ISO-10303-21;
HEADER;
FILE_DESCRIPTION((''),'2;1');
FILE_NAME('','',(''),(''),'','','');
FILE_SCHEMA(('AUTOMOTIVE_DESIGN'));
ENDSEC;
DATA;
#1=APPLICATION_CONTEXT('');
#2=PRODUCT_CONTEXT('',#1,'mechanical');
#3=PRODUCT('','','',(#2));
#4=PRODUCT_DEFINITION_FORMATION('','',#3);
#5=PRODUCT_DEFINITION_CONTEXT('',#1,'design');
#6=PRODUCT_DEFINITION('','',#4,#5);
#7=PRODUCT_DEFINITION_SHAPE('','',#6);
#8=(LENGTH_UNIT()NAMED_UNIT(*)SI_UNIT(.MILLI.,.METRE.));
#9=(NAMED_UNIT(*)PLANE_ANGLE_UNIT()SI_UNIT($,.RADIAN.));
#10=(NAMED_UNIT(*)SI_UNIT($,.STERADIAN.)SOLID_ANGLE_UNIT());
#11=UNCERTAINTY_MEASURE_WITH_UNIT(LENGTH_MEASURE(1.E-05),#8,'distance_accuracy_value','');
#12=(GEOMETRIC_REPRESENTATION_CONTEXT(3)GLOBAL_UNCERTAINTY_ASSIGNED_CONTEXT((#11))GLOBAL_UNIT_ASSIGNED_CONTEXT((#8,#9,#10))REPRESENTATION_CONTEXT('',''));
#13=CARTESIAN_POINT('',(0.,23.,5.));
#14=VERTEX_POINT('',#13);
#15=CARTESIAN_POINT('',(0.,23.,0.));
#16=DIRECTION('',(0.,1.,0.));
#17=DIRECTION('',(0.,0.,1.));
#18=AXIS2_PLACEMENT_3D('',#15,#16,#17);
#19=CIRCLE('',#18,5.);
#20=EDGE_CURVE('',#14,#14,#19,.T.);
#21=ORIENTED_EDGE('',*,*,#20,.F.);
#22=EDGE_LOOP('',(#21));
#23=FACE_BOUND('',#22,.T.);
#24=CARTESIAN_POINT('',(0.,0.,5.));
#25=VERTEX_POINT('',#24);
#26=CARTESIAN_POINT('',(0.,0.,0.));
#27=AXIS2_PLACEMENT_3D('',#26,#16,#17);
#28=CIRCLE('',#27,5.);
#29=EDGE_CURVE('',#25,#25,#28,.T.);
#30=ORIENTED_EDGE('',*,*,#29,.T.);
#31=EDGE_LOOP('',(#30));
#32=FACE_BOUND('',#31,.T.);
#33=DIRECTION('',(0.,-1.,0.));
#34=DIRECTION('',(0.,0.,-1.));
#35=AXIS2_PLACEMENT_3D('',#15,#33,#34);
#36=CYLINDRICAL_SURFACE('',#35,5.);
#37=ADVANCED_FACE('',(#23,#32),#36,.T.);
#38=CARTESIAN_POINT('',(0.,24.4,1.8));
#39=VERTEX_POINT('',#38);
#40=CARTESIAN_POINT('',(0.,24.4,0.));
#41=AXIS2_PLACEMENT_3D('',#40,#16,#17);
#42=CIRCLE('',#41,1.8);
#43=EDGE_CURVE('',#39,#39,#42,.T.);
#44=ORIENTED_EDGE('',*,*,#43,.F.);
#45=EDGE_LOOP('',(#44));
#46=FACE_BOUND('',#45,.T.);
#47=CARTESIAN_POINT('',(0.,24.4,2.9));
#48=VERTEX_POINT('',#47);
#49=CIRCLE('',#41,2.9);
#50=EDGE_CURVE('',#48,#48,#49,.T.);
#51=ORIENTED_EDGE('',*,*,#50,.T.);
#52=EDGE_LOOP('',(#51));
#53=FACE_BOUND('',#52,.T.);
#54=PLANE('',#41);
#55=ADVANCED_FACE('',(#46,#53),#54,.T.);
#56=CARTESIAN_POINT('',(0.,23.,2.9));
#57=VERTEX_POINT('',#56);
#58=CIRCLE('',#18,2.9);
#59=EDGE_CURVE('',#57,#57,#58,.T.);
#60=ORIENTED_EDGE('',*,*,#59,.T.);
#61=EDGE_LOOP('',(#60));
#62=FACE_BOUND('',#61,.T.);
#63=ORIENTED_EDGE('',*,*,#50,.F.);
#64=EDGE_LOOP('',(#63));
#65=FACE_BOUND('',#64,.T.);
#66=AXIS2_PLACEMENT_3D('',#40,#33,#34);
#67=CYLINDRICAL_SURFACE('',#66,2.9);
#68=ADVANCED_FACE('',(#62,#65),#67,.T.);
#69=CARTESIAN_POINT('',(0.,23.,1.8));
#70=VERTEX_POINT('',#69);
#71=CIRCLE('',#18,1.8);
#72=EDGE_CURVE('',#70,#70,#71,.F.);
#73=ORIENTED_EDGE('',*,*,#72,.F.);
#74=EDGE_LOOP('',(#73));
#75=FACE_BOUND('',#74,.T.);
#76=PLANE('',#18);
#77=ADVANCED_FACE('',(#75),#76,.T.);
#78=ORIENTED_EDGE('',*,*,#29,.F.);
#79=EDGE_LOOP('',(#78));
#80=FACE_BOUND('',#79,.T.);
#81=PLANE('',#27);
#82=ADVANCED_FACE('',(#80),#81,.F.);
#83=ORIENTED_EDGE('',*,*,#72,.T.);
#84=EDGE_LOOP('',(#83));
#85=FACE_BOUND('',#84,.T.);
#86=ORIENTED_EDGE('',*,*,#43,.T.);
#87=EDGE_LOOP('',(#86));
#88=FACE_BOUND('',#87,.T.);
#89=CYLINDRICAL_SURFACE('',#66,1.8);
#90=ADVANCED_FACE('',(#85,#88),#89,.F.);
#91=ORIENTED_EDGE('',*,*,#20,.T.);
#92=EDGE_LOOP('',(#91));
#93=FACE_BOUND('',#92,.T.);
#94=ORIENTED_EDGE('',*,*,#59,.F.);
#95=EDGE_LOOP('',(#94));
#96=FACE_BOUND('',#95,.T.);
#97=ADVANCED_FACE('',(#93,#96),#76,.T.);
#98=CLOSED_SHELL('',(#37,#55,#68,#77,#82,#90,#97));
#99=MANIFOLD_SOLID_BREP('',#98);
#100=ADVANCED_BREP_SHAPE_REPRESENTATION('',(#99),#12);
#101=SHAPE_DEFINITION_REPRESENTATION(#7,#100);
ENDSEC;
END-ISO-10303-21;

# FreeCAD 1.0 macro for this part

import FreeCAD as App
import Part
import Sketcher
from FreeCAD import Vector
Q = App.Units.Quantity

doc = App.newDocument("Part")
body = doc.addObject("PartDesign::Body", "Body")

# Sketch on XZ plane
sketch1 = body.newObject("Sketcher::SketchObject", "Sketch")
sketch1.AttachmentSupport = (doc.getObject("XZ_Plane"), [""])
sketch1.MapMode = "FlatFace"
sketch1.addGeometry(Part.Circle(Vector(0, 0, 0), Vector(0, 0, 1), 5), False)
sketch1.addConstraint([
    Sketcher.Constraint("Coincident", 0, 3, -1, 1),
    Sketcher.Constraint("Diameter", 0, Q("10 mm")),
])
pad1 = body.newObject("PartDesign::Pad", "Pad")
pad1.Profile = sketch1
pad1.Length = 23
pad1.Reversed = True

# Sketch on XZ plane
sketch2 = body.newObject("Sketcher::SketchObject", "Sketch001")
sketch2.AttachmentSupport = (doc.getObject("XZ_Plane"), [""])
sketch2.MapMode = "FlatFace"
sketch2.AttachmentOffset = App.Placement(Vector(0, 0, -23), App.Rotation())
sketch2.addGeometry([
    Part.Circle(Vector(0, 0, 0), Vector(0, 0, 1), 2.9),
    Part.Circle(Vector(0, 0, 0), Vector(0, 0, 1), 1.8),
], False)
sketch2.addConstraint([
    Sketcher.Constraint("Coincident", 0, 3, -1, 1),
    Sketcher.Constraint("Coincident", 1, 3, -1, 1),
    Sketcher.Constraint("Diameter", 0, Q("5.8 mm")),
    Sketcher.Constraint("Diameter", 1, Q("3.6 mm")),
])
pad2 = body.newObject("PartDesign::Pad", "Pad001")
pad2.Profile = sketch2
pad2.Length = 1.4
pad2.Reversed = True

doc.recompute()
